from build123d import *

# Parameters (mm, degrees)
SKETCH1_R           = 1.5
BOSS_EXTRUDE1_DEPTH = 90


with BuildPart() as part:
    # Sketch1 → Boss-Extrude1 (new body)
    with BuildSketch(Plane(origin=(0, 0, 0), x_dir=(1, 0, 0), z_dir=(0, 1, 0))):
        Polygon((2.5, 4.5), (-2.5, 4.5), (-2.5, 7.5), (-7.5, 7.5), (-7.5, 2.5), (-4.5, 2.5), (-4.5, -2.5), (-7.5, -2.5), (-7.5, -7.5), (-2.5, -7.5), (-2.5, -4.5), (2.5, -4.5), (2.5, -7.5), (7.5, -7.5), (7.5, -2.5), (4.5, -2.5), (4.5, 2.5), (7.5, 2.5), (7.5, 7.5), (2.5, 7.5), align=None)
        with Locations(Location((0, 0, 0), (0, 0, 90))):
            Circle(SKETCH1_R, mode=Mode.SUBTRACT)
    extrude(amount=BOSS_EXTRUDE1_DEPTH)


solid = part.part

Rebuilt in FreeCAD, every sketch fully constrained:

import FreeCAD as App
import Part
import Sketcher

V = App.Vector
Q = App.Units.Quantity


def add_polygon(sketch, points):
    """Adds a closed chain of lines whose ends are joined by coincident constraints."""
    first, n = sketch.GeometryCount, len(points)
    for a, b in zip(points, points[1:] + points[:1]):
        sketch.addGeometry(Part.LineSegment(App.Vector(*a, 0), App.Vector(*b, 0)), False)
    for i in range(n):
        sketch.addConstraint(Sketcher.Constraint("Coincident", first + i, 2, first + (i + 1) % n, 1))

doc = App.newDocument("Part")
body = doc.addObject("PartDesign::Body", "Body")

# Sketch on XZ plane
sketch1 = body.newObject("Sketcher::SketchObject", "Sketch")
sketch1.AttachmentSupport = (doc.getObject("XZ_Plane"), [""])
sketch1.MapMode = "FlatFace"
add_polygon(sketch1, [(2.5, -4.5), (-2.5, -4.5), (-2.5, -7.5), (-7.5, -7.5), (-7.5, -2.5), (-4.5, -2.5), (-4.5, 2.5), (-7.5, 2.5), (-7.5, 7.5), (-2.5, 7.5), (-2.5, 4.5), (2.5, 4.5), (2.5, 7.5), (7.5, 7.5), (7.5, 2.5), (4.5, 2.5), (4.5, -2.5), (7.5, -2.5), (7.5, -7.5), (2.5, -7.5)])  # lines 0-19
sketch1.addGeometry(Part.Circle(V(0, 0, 0), V(0, 0, 1), 1.5), False)  # 20
sketch1.addConstraint(Sketcher.Constraint("Horizontal", 0))
sketch1.addConstraint(Sketcher.Constraint("Vertical", 1))
sketch1.addConstraint(Sketcher.Constraint("Horizontal", 2))
sketch1.addConstraint(Sketcher.Constraint("Vertical", 3))
sketch1.addConstraint(Sketcher.Constraint("Horizontal", 4))
sketch1.addConstraint(Sketcher.Constraint("Vertical", 5))
sketch1.addConstraint(Sketcher.Constraint("Horizontal", 6))
sketch1.addConstraint(Sketcher.Constraint("Vertical", 7))
sketch1.addConstraint(Sketcher.Constraint("Horizontal", 8))
sketch1.addConstraint(Sketcher.Constraint("Vertical", 9))
sketch1.addConstraint(Sketcher.Constraint("Horizontal", 10))
sketch1.addConstraint(Sketcher.Constraint("Vertical", 11))
sketch1.addConstraint(Sketcher.Constraint("Horizontal", 12))
sketch1.addConstraint(Sketcher.Constraint("Vertical", 13))
sketch1.addConstraint(Sketcher.Constraint("Horizontal", 14))
sketch1.addConstraint(Sketcher.Constraint("Vertical", 15))
sketch1.addConstraint(Sketcher.Constraint("Horizontal", 16))
sketch1.addConstraint(Sketcher.Constraint("Vertical", 17))
sketch1.addConstraint(Sketcher.Constraint("Horizontal", 18))
sketch1.addConstraint(Sketcher.Constraint("Vertical", 19))
sketch1.addConstraint(Sketcher.Constraint("Coincident", 20, 3, -1, 1))
sketch1.addConstraint(Sketcher.Constraint("Symmetric", 0, 2, 10, 2, -1, 1))
sketch1.addConstraint(Sketcher.Constraint("Symmetric", 2, 2, 12, 2, -1, 1))
sketch1.addConstraint(Sketcher.Constraint("Symmetric", 4, 2, 14, 2, -1, 1))
sketch1.addConstraint(Sketcher.Constraint("Symmetric", 6, 2, 16, 2, -1, 1))
sketch1.addConstraint(Sketcher.Constraint("Symmetric", 8, 2, 18, 2, -1, 1))
sketch1.addConstraint(Sketcher.Constraint("Symmetric", 8, 2, 11, 2, -2))
sketch1.addConstraint(Sketcher.Constraint("Symmetric", 6, 2, 13, 2, -2))
sketch1.addConstraint(Sketcher.Constraint("Equal", 0, 2))
sketch1.addConstraint(Sketcher.Constraint("Equal", 16, 1))
sketch1.addConstraint(Sketcher.Constraint("Equal", 18, 3))
sketch1.addConstraint(Sketcher.Constraint("Equal", 3, 5))
sketch1.addConstraint(Sketcher.Constraint("Diameter", 20, Q("3 mm")))
sketch1.addConstraint(Sketcher.Constraint("DistanceX", 0, 2, 0, 1, Q("5 mm")))
sketch1.addConstraint(Sketcher.Constraint("DistanceX", 4, 1, 4, 2, Q("3 mm")))
pad1 = body.newObject("PartDesign::Pad", "Pad")
pad1.Profile = sketch1
pad1.Length = 90
pad1.Reversed = True

doc.recompute()
